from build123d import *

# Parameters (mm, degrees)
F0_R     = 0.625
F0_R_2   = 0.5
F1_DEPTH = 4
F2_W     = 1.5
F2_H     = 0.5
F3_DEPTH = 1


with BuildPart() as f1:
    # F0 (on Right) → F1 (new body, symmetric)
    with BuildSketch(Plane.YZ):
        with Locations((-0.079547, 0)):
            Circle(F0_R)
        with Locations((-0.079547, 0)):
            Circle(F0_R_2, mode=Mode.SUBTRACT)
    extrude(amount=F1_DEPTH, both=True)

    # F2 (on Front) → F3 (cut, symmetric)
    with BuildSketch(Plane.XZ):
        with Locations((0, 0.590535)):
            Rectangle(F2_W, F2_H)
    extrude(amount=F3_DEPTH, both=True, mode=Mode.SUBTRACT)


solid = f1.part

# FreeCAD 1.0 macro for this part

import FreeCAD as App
import Part
import Sketcher


def add_polygon(sketch, points):
    """Adds a closed chain of lines whose ends are joined by coincident constraints."""
    first, n = sketch.GeometryCount, len(points)
    for a, b in zip(points, points[1:] + points[:1]):
        sketch.addGeometry(Part.LineSegment(App.Vector(*a, 0), App.Vector(*b, 0)), False)
    for i in range(n):
        sketch.addConstraint(Sketcher.Constraint("Coincident", first + i, 2, first + (i + 1) % n, 1))

doc = App.newDocument("Part")
body = doc.addObject("PartDesign::Body", "Body")

# Sketch on YZ plane
sketch1 = doc.addObject("Sketcher::SketchObject", "Sketch")
body.addObject(sketch1)
sketch1.AttachmentSupport = (doc.YZ_Plane, [""])
sketch1.MapMode = "FlatFace"
sketch1.addGeometry(Part.Circle(App.Vector(-0.1, 0, 0), App.Vector(0, 0, 1), 0.6), False)
sketch1.addGeometry(Part.Circle(App.Vector(-0.1, 0, 0), App.Vector(0, 0, 1), 0.5), False)
sketch1.addConstraint(Sketcher.Constraint("Coincident", 1, 3, 0, 3))
sketch1.addConstraint(Sketcher.Constraint("PointOnObject", 0, 3, -1))
sketch1.addConstraint(Sketcher.Constraint("Diameter", 1, 1.0))
sketch1.addConstraint(Sketcher.Constraint("Diameter", 0, 1.25))
sketch1.addConstraint(Sketcher.Constraint("DistanceX", 0, 3, -1, 1, 0.079547))
pad1 = doc.addObject("PartDesign::Pad", "Pad")
body.addObject(pad1)
pad1.Profile = sketch1
pad1.Length = 8
pad1.Midplane = True

# Sketch on XZ plane
sketch2 = doc.addObject("Sketcher::SketchObject", "Sketch001")
body.addObject(sketch2)
sketch2.AttachmentSupport = (doc.XZ_Plane, [""])
sketch2.MapMode = "FlatFace"
add_polygon(sketch2, [(-0.8, 0.8), (-0.8, 0.3), (0.8, 0.3), (0.8, 0.8)])  # lines 0-3
sketch2.addConstraint(Sketcher.Constraint("Vertical", 0))
sketch2.addConstraint(Sketcher.Constraint("Horizontal", 1))
sketch2.addConstraint(Sketcher.Constraint("Vertical", 2))
sketch2.addConstraint(Sketcher.Constraint("Horizontal", 3))
sketch2.addConstraint(Sketcher.Constraint("DistanceX", 1, 1, 1, 2, 1.5))
sketch2.addConstraint(Sketcher.Constraint("DistanceY", 0, 2, 0, 1, 0.5))
sketch2.addConstraint(Sketcher.Constraint("DistanceX", 0, 2, -1, 1, 0.75))
sketch2.addConstraint(Sketcher.Constraint("DistanceY", -1, 1, 0, 2, 0.340535))
pocket1 = doc.addObject("PartDesign::Pocket", "Pocket")
body.addObject(pocket1)
pocket1.Profile = sketch2
pocket1.Length = 2
pocket1.Midplane = True

doc.recompute()
